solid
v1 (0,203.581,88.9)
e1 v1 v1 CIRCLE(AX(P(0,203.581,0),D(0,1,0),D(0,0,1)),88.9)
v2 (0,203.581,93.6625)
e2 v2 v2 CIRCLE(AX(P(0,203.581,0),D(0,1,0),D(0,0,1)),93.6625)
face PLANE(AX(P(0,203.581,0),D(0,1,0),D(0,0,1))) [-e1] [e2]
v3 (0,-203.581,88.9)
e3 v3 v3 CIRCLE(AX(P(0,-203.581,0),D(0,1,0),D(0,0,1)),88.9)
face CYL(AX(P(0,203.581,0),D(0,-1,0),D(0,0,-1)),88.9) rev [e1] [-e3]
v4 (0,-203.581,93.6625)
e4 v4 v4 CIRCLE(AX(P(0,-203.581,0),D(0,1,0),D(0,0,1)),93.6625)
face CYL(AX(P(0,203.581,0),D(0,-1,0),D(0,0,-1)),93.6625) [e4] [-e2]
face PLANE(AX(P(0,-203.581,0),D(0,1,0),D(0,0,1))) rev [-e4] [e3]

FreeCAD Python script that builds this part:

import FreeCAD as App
import Part
import Sketcher
from FreeCAD import Vector
Q = App.Units.Quantity

doc = App.newDocument("Part")
body = doc.addObject("PartDesign::Body", "Body")

sketch1 = body.newObject("Sketcher::SketchObject", "Sketch")
sketch1.AttachmentSupport = (doc.getObject("XZ_Plane"), [""])
sketch1.MapMode = "FlatFace"
sketch1.addGeometry([
    Part.Circle(Vector(0, 0, 0), Vector(0, 0, 1), 94),
    Part.Circle(Vector(0, 0, 0), Vector(0, 0, 1), 89),
], False)
sketch1.addConstraint([
    Sketcher.Constraint("Coincident", 0, 3, -1, 1),
    Sketcher.Constraint("Coincident", 1, 3, -1, 1),
    Sketcher.Constraint("Diameter", 1, Q("7 in")),
    Sketcher.Constraint("Diameter", 0, Q("7.375 in")),
])
pad1 = body.newObject("PartDesign::Pad", "Pad")
pad1.Profile = sketch1
pad1.Length = Q("16.03 in")
pad1.Midplane = True

doc.recompute()
